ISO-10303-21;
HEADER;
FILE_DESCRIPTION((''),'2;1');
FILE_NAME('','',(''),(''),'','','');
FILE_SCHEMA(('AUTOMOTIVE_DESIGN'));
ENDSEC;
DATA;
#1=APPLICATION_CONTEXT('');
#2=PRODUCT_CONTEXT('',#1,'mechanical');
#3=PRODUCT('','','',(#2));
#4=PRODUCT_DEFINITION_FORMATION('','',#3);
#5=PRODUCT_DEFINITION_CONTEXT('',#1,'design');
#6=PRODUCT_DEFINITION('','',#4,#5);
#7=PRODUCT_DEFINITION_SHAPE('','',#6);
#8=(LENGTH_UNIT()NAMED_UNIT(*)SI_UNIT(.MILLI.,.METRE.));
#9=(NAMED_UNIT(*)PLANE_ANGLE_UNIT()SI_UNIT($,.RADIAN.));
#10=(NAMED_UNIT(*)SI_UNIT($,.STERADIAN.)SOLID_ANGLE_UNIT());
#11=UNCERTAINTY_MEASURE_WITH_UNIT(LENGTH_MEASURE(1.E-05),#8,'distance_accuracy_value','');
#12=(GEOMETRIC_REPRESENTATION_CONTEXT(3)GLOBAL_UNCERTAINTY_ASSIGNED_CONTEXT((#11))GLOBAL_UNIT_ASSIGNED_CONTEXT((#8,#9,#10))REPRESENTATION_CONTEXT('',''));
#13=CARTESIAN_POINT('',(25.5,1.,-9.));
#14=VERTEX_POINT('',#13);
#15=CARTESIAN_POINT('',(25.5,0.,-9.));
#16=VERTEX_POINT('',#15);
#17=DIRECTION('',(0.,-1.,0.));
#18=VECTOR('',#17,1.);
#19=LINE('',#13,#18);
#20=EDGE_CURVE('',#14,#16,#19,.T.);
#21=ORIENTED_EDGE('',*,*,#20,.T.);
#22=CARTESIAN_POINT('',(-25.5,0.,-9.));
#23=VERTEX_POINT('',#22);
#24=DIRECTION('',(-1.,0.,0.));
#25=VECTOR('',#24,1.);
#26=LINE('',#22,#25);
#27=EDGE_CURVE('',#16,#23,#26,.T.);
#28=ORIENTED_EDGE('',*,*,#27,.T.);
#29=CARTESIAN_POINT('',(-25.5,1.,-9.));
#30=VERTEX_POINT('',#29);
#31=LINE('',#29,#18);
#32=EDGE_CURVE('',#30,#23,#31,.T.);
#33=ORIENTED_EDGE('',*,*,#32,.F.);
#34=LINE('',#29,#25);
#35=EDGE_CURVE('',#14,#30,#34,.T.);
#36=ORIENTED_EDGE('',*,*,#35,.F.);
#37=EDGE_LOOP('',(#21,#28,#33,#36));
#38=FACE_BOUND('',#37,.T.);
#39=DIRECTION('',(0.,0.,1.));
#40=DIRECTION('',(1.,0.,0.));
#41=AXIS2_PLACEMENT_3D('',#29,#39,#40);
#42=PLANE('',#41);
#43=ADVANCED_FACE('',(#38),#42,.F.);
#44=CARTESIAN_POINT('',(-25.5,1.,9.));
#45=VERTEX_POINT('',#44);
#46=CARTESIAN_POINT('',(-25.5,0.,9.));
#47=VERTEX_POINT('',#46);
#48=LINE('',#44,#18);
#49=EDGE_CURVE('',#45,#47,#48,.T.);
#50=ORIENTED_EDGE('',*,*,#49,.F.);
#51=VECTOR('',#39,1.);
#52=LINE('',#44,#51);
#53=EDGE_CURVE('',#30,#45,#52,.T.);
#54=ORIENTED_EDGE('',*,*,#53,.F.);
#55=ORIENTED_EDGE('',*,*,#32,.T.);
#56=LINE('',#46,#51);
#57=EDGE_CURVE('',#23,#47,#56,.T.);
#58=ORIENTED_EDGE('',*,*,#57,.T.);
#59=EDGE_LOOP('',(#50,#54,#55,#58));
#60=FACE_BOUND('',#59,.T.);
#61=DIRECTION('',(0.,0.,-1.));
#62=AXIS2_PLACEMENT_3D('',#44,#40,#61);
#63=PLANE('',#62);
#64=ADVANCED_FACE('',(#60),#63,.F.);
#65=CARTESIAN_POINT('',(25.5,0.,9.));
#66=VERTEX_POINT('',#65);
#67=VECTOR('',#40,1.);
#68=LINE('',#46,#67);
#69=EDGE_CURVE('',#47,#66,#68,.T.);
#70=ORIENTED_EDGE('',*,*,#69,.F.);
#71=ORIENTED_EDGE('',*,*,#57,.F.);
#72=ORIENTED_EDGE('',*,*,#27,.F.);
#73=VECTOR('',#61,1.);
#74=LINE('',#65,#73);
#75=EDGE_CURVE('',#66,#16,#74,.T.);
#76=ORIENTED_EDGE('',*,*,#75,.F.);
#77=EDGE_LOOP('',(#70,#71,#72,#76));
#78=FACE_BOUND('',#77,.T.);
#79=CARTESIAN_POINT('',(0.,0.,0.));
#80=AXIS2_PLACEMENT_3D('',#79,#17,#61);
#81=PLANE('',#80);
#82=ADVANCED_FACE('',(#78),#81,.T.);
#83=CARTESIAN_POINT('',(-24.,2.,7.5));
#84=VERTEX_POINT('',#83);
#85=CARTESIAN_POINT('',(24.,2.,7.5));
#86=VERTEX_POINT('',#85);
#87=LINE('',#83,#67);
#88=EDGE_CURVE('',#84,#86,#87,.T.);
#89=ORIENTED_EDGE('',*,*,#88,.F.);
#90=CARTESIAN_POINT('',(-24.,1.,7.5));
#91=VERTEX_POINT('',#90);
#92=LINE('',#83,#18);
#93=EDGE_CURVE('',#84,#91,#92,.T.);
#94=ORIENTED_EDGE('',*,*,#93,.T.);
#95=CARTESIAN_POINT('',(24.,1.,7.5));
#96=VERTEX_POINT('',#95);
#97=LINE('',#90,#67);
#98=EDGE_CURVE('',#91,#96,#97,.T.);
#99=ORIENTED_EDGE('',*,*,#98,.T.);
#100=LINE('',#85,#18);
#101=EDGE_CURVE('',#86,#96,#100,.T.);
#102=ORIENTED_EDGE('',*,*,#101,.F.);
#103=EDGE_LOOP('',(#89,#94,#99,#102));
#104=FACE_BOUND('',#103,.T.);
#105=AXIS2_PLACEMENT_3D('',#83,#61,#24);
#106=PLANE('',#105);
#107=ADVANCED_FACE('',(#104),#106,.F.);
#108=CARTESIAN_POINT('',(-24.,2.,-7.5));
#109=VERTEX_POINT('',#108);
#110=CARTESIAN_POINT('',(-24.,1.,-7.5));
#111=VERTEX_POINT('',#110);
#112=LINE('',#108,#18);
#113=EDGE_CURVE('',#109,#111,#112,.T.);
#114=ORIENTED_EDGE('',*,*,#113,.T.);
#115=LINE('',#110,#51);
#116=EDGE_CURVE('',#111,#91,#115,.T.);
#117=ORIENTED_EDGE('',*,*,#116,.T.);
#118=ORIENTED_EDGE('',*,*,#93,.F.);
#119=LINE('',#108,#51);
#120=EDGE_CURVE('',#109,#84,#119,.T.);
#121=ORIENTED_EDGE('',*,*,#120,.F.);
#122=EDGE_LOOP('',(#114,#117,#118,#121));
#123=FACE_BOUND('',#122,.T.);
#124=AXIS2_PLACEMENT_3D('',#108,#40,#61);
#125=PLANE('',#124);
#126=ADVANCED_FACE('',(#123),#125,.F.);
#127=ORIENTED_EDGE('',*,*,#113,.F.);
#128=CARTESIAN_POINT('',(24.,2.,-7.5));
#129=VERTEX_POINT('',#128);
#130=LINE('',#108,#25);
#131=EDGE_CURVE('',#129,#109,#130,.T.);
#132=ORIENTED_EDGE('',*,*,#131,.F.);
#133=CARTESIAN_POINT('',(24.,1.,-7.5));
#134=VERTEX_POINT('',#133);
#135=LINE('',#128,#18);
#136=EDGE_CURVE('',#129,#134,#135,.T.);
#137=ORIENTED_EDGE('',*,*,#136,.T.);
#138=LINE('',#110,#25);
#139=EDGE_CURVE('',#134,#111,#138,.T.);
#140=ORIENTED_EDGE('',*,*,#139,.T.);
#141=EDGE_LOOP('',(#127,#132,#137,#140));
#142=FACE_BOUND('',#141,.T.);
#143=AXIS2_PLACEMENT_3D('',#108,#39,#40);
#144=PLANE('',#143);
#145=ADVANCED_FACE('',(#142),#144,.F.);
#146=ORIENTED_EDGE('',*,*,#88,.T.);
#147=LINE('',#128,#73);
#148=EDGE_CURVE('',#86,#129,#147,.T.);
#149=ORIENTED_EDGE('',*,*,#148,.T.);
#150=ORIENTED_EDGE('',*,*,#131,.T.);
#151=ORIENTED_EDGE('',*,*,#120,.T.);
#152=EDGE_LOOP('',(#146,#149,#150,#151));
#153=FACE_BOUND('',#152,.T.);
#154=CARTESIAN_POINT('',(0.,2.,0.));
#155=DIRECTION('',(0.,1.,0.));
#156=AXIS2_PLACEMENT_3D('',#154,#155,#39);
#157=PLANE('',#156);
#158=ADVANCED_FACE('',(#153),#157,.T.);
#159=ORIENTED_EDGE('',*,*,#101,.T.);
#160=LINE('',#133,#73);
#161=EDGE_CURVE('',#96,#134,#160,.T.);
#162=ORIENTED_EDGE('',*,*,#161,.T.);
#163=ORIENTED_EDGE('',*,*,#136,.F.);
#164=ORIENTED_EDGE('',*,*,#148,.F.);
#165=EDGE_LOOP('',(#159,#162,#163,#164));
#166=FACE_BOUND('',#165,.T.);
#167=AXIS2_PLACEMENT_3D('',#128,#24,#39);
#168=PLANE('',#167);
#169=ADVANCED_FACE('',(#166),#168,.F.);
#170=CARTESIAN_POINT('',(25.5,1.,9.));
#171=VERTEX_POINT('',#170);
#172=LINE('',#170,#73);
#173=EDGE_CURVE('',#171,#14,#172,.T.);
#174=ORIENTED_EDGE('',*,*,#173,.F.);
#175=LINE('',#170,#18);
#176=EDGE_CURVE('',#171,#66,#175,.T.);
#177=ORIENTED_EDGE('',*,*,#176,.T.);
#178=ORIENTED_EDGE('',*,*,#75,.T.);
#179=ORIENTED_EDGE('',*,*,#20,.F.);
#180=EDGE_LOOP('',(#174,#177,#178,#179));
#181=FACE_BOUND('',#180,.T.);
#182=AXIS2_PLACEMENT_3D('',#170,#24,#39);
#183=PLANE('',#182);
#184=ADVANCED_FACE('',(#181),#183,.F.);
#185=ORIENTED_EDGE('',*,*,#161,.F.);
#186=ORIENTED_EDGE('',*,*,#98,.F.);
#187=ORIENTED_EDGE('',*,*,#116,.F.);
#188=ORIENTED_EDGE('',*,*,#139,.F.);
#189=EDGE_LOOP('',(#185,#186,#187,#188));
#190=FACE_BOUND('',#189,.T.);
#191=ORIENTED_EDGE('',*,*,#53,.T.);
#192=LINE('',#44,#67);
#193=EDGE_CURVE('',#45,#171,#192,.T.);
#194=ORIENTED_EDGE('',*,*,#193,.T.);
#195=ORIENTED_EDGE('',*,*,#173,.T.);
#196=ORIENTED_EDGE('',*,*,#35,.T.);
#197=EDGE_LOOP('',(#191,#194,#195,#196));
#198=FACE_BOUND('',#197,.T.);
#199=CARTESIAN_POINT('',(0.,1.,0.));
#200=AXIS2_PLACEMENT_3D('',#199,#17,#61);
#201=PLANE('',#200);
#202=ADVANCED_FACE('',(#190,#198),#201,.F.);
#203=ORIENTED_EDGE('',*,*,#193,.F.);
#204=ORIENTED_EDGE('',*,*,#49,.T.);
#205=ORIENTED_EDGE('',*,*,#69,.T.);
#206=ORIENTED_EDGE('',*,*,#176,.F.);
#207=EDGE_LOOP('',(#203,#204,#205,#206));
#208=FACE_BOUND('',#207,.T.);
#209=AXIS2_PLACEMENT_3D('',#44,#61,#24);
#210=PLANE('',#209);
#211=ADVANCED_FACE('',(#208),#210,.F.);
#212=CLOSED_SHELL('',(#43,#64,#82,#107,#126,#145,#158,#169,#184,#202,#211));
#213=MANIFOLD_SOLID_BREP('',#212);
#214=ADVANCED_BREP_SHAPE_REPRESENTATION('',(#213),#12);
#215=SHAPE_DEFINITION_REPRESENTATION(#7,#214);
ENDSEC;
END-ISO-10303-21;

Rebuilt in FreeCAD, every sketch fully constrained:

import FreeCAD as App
import Part
import Sketcher
Q = App.Units.Quantity

doc = App.newDocument("Part")
body = doc.addObject("PartDesign::Body", "Body")

# Sketch on XZ plane
sketch1 = doc.addObject("Sketcher::SketchObject", "Sketch")
body.addObject(sketch1)
sketch1.AttachmentSupport = (doc.XZ_Plane, [""])
sketch1.MapMode = "FlatFace"
sketch1.addGeometry([
    Part.LineSegment(App.Vector(-25.5, -9, 0), App.Vector(-25.5, 9, 0)),
    Part.LineSegment(App.Vector(-25.5, 9, 0), App.Vector(25.5, 9, 0)),
    Part.LineSegment(App.Vector(25.5, 9, 0), App.Vector(25.5, -9, 0)),
    Part.LineSegment(App.Vector(25.5, -9, 0), App.Vector(-25.5, -9, 0)),
], False)
sketch1.addConstraint([
    Sketcher.Constraint("Coincident", 0, 2, 1, 1),
    Sketcher.Constraint("Coincident", 1, 2, 2, 1),
    Sketcher.Constraint("Coincident", 2, 2, 3, 1),
    Sketcher.Constraint("Coincident", 3, 2, 0, 1),
    Sketcher.Constraint("Vertical", 0),
    Sketcher.Constraint("Horizontal", 1),
    Sketcher.Constraint("Vertical", 2),
    Sketcher.Constraint("Horizontal", 3),
    Sketcher.Constraint("Symmetric", 0, 2, 2, 2, -1, 1),
    Sketcher.Constraint("DistanceX", 1, 1, 1, 2, Q("51 mm")),
    Sketcher.Constraint("DistanceY", 0, 1, 0, 2, Q("18 mm")),
])
pad1 = doc.addObject("PartDesign::Pad", "Pad")
body.addObject(pad1)
pad1.Profile = sketch1
pad1.Length = 1
pad1.Reversed = True

# Sketch on XZ plane
sketch2 = doc.addObject("Sketcher::SketchObject", "Sketch001")
body.addObject(sketch2)
sketch2.AttachmentSupport = (doc.XZ_Plane, [""])
sketch2.MapMode = "FlatFace"
sketch2.AttachmentOffset = App.Placement(App.Vector(0, 0, -1), App.Rotation())
sketch2.addGeometry([
    Part.LineSegment(App.Vector(-24, -7.5, 0), App.Vector(-24, 7.5, 0)),
    Part.LineSegment(App.Vector(-24, 7.5, 0), App.Vector(24, 7.5, 0)),
    Part.LineSegment(App.Vector(24, 7.5, 0), App.Vector(24, -7.5, 0)),
    Part.LineSegment(App.Vector(24, -7.5, 0), App.Vector(-24, -7.5, 0)),
], False)
sketch2.addConstraint([
    Sketcher.Constraint("Coincident", 0, 2, 1, 1),
    Sketcher.Constraint("Coincident", 1, 2, 2, 1),
    Sketcher.Constraint("Coincident", 2, 2, 3, 1),
    Sketcher.Constraint("Coincident", 3, 2, 0, 1),
    Sketcher.Constraint("Vertical", 0),
    Sketcher.Constraint("Horizontal", 1),
    Sketcher.Constraint("Vertical", 2),
    Sketcher.Constraint("Horizontal", 3),
    Sketcher.Constraint("Symmetric", 0, 2, 2, 2, -1, 1),
    Sketcher.Constraint("DistanceX", 1, 1, 1, 2, Q("48 mm")),
    Sketcher.Constraint("DistanceY", 0, 1, 0, 2, Q("15 mm")),
])
pad2 = doc.addObject("PartDesign::Pad", "Pad001")
body.addObject(pad2)
pad2.Profile = sketch2
pad2.Length = 1
pad2.Reversed = True

doc.recompute()
